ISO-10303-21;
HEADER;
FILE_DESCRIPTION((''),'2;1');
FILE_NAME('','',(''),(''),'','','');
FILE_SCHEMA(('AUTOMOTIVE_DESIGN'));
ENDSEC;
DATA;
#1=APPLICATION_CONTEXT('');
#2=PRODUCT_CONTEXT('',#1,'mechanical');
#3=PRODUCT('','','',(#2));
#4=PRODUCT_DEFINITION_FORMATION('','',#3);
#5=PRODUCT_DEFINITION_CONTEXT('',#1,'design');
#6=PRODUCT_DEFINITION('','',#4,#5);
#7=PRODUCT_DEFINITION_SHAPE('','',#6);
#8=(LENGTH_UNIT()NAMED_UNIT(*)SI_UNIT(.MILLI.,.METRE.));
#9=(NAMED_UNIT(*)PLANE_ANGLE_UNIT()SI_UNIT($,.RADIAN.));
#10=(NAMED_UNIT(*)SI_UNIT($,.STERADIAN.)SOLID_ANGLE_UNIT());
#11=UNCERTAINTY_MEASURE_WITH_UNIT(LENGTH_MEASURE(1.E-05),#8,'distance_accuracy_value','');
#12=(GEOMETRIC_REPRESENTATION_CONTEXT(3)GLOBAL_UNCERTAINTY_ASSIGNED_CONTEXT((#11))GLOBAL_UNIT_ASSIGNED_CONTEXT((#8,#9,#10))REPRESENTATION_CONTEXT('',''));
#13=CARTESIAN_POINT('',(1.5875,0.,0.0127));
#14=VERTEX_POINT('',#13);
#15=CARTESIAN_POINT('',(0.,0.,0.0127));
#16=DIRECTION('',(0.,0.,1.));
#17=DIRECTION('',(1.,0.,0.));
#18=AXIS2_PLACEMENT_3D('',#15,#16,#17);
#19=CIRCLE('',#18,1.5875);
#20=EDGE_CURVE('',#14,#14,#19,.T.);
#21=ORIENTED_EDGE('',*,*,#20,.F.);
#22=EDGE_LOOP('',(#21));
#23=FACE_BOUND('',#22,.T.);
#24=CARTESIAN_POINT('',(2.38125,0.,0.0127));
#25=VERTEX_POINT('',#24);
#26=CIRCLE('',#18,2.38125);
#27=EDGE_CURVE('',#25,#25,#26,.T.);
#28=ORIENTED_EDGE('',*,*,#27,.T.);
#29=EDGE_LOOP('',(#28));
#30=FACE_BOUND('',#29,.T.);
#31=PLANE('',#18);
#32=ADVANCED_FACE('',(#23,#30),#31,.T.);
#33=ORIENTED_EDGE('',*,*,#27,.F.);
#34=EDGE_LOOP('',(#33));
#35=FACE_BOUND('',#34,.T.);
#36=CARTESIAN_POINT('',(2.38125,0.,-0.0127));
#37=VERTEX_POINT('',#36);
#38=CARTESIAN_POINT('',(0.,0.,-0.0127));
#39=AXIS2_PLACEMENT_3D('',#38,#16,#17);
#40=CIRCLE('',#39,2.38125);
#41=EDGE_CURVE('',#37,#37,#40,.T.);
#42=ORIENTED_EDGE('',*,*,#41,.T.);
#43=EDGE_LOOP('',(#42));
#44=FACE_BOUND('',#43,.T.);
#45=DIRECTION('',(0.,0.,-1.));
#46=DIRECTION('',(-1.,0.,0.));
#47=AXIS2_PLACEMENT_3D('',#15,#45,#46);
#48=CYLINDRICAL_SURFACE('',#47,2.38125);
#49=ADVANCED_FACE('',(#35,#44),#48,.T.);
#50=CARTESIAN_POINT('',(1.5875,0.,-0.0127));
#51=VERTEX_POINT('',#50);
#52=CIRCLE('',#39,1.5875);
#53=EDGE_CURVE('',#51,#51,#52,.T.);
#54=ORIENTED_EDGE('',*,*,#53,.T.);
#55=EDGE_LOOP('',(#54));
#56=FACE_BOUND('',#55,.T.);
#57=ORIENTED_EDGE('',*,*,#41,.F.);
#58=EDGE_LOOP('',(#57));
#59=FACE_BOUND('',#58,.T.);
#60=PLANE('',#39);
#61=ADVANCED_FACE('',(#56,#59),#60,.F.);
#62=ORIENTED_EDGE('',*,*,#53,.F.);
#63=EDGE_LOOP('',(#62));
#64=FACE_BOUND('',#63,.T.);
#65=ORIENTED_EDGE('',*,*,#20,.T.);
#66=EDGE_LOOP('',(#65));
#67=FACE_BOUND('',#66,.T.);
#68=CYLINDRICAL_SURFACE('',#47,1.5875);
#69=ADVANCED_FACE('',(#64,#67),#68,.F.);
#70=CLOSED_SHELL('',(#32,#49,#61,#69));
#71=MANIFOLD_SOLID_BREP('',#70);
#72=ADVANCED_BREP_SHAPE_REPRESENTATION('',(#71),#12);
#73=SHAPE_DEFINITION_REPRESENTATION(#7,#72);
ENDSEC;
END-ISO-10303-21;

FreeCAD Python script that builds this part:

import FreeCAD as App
import Part
import Sketcher
Q = App.Units.Quantity

doc = App.newDocument("Part")
body = doc.addObject("PartDesign::Body", "Body")

sketch1 = body.newObject("Sketcher::SketchObject", "Sketch")
sketch1.AttachmentSupport = (doc.getObject("XY_Plane"), [""])
sketch1.MapMode = "FlatFace"
sketch1.addGeometry(Part.Circle(App.Vector(0, 0, 0), App.Vector(0, 0, 1), 2.4), False)
sketch1.addGeometry(Part.Circle(App.Vector(0, 0, 0), App.Vector(0, 0, 1), 1.6), False)
sketch1.addConstraint(Sketcher.Constraint("Coincident", 0, 3, -1, 1))
sketch1.addConstraint(Sketcher.Constraint("Coincident", 1, 3, -1, 1))
sketch1.addConstraint(Sketcher.Constraint("Diameter", 0, Q("0.1875 in")))
sketch1.addConstraint(Sketcher.Constraint("Diameter", 1, Q("0.125 in")))
pad1 = body.newObject("PartDesign::Pad", "Pad")
pad1.Profile = sketch1
pad1.Length = Q("0.001 in")
pad1.Midplane = True

doc.recompute()
